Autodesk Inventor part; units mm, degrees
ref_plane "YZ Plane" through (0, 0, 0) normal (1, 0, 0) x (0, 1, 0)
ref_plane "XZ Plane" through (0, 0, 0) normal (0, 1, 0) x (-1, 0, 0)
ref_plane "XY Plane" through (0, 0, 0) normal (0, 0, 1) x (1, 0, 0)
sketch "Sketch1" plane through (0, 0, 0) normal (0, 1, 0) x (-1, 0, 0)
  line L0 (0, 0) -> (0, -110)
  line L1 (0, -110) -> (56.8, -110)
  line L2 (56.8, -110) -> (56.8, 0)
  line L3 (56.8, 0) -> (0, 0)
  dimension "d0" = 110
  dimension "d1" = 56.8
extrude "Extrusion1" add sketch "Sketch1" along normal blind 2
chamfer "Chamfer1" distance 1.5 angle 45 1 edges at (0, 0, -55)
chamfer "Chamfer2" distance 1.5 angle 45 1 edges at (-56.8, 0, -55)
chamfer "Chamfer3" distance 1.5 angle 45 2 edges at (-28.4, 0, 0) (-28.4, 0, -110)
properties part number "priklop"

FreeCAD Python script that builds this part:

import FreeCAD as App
import Part
import Sketcher
from FreeCAD import Vector
Q = App.Units.Quantity


def edges_at(feature, points):
    """Names of the edges that pass closest to the given points."""
    edges = feature.Shape.Edges
    near = lambda p: min(range(len(edges)), key=lambda i: edges[i].distToShape(Part.Vertex(*p))[0])
    return sorted({f"Edge{near(p) + 1}" for p in points})

doc = App.newDocument("Part")
body = doc.addObject("PartDesign::Body", "Body")

# Sketch on XZ plane
sketch1 = doc.addObject("Sketcher::SketchObject", "Sketch")
body.addObject(sketch1)
sketch1.AttachmentSupport = (doc.XZ_Plane, [""])
sketch1.MapMode = "FlatFace"
sketch1.addGeometry([
    Part.LineSegment(Vector(-56.8, 0, 0), Vector(0, 0, 0)),
    Part.LineSegment(Vector(0, 0, 0), Vector(0, -110, 0)),
    Part.LineSegment(Vector(0, -110, 0), Vector(-56.8, -110, 0)),
    Part.LineSegment(Vector(-56.8, -110, 0), Vector(-56.8, 0, 0)),
], False)
sketch1.addConstraint([
    Sketcher.Constraint("Coincident", 0, 2, 1, 1),
    Sketcher.Constraint("Coincident", 1, 2, 2, 1),
    Sketcher.Constraint("Coincident", 2, 2, 3, 1),
    Sketcher.Constraint("Coincident", 3, 2, 0, 1),
    Sketcher.Constraint("Horizontal", 0),
    Sketcher.Constraint("Vertical", 1),
    Sketcher.Constraint("Horizontal", 2),
    Sketcher.Constraint("Vertical", 3),
    Sketcher.Constraint("Coincident", 0, 2, -1, 1),
    Sketcher.Constraint("DistanceY", 1, 2, 1, 1, Q("110 mm")),
    Sketcher.Constraint("DistanceX", 0, 1, 0, 2, Q("56.8 mm")),
])
pad1 = doc.addObject("PartDesign::Pad", "Pad")
body.addObject(pad1)
pad1.Profile = sketch1
pad1.Length = 2
pad1.Reversed = True
doc.recompute()

chamfer = doc.addObject("PartDesign::Chamfer", "Chamfer")
body.addObject(chamfer)
chamfer.Base = (pad1, edges_at(pad1, [(0, 0, -55)]))
chamfer.Size = 1.5
doc.recompute()

chamfer2 = doc.addObject("PartDesign::Chamfer", "Chamfer001")
body.addObject(chamfer2)
chamfer2.Base = (chamfer, edges_at(chamfer, [(-56.8, 0, -55)]))
chamfer2.Size = 1.5
doc.recompute()

chamfer3 = doc.addObject("PartDesign::Chamfer", "Chamfer002")
body.addObject(chamfer3)
chamfer3.Base = (chamfer2, edges_at(chamfer2, [(-28.4, 0, 0), (-28.4, 0, -110)]))
chamfer3.Size = 1.5

doc.recompute()
